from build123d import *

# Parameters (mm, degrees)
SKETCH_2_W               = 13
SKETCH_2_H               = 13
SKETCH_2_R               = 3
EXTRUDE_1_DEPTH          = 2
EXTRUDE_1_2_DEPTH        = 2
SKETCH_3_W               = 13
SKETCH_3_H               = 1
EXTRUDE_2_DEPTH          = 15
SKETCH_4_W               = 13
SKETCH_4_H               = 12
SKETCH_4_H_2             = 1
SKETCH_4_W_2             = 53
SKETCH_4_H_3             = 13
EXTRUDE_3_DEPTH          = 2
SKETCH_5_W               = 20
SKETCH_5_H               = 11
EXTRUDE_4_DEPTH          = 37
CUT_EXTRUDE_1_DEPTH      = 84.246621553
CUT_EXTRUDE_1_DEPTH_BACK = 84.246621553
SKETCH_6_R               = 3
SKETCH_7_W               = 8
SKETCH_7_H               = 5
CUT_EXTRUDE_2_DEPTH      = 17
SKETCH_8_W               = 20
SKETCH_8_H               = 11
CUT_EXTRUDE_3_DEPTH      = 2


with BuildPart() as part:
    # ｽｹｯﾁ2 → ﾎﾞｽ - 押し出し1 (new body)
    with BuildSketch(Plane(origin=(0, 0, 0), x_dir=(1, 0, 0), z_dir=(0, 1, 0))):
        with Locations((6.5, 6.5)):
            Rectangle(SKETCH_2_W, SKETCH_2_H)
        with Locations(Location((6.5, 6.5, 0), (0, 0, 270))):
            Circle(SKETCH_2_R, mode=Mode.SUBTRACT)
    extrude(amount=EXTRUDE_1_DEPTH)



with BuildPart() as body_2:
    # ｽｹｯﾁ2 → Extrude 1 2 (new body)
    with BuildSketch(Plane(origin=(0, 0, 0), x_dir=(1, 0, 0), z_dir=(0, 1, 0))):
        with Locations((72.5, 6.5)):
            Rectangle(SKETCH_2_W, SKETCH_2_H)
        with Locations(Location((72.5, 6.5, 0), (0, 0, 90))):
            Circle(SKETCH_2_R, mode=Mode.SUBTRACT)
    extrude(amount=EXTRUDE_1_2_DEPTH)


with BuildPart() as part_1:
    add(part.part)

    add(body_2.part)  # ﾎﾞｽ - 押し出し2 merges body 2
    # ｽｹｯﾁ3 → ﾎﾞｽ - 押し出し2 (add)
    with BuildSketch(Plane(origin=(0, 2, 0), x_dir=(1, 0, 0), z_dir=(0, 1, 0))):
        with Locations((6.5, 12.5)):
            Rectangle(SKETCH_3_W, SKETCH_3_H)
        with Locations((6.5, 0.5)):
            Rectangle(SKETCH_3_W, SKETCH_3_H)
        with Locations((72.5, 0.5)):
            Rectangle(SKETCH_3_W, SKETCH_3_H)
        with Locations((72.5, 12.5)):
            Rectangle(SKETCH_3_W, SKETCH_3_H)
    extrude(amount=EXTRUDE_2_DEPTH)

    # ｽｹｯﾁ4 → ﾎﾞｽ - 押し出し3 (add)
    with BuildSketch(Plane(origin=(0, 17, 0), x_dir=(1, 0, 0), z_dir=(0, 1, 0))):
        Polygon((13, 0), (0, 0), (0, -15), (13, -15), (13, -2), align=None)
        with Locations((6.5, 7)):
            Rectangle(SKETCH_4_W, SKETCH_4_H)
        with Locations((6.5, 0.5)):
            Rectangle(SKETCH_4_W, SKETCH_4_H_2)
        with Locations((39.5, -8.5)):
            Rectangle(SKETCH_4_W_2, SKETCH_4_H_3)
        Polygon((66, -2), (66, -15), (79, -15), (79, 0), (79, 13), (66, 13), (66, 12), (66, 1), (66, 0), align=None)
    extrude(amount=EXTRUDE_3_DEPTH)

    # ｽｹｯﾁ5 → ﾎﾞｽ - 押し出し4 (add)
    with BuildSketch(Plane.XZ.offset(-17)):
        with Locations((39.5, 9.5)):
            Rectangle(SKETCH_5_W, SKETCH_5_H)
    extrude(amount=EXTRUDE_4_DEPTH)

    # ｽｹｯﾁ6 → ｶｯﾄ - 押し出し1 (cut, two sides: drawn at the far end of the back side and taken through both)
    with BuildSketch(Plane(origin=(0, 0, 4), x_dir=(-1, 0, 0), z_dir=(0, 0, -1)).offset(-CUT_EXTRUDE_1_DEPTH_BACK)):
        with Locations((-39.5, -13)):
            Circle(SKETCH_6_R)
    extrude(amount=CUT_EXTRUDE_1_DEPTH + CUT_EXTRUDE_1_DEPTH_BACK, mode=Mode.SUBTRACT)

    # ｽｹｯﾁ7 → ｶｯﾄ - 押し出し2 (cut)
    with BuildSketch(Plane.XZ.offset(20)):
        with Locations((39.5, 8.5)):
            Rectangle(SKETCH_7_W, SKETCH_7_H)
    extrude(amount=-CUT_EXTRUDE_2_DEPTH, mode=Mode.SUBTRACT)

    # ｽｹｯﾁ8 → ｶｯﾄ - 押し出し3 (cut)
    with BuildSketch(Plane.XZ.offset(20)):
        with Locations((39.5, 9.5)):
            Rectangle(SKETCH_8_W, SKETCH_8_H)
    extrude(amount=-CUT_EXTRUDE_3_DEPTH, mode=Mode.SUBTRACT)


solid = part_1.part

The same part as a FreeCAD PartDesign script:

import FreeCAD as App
import Part
import Sketcher

V = App.Vector

doc = App.newDocument("Part")
params = doc.addObject("Spreadsheet::Sheet", "Params")
for row, (alias, value) in enumerate([
    ("sketch1_diameter", "6 mm"),
    ("sketch1_width", "13 mm"),
    ("pad1_length", "2 mm"),
    ("sketch2_diameter", "6 mm"),
    ("sketch2_width", "13 mm"),
    ("pad2_length", "2 mm"),
    ("sketch3_width", "13 mm"),
    ("sketch3_height", "1 mm"),
    ("pad3_length", "15 mm"),
    ("sketch4_width", "79 mm"),
    ("sketch4_width2", "13 mm"),
    ("sketch4_height", "28 mm"),
    ("sketch4_height2", "15 mm"),
    ("pad4_length", "2 mm"),
    ("sketch5_width", "20 mm"),
    ("sketch5_height", "11 mm"),
    ("pad5_length", "37 mm"),
    ("sketch6_diameter", "6 mm"),
    ("sketch7_width", "8 mm"),
    ("sketch7_height", "5 mm"),
    ("pocket2_length", "17 mm"),
    ("sketch8_width", "20 mm"),
    ("sketch8_height", "11 mm"),
    ("pocket3_length", "2 mm"),
], start=1):
    params.set(f"A{row}", alias)
    params.set(f"B{row}", "=" + value)
    params.setAlias(f"B{row}", alias)

body = doc.addObject("PartDesign::Body", "Body")

sketch1 = body.newObject("Sketcher::SketchObject", "Sketch")
sketch1.AttachmentSupport = (doc.getObject("XZ_Plane"), [""])
sketch1.MapMode = "FlatFace"
sketch1.addGeometry(Part.LineSegment(V(0, -13, 0), V(0, 0, 0)), False)
sketch1.addGeometry(Part.LineSegment(V(0, 0, 0), V(13, 0, 0)), False)
sketch1.addGeometry(Part.LineSegment(V(13, 0, 0), V(13, -13, 0)), False)
sketch1.addGeometry(Part.LineSegment(V(13, -13, 0), V(0, -13, 0)), False)
sketch1.addGeometry(Part.Circle(V(6.5, -6.5, 0), V(0, 0, 1), 3), False)
sketch1.addConstraint(Sketcher.Constraint("Coincident", 0, 2, 1, 1))
sketch1.addConstraint(Sketcher.Constraint("Coincident", 1, 2, 2, 1))
sketch1.addConstraint(Sketcher.Constraint("Coincident", 2, 2, 3, 1))
sketch1.addConstraint(Sketcher.Constraint("Coincident", 3, 2, 0, 1))
sketch1.addConstraint(Sketcher.Constraint("Vertical", 0))
sketch1.addConstraint(Sketcher.Constraint("Horizontal", 1))
sketch1.addConstraint(Sketcher.Constraint("Vertical", 2))
sketch1.addConstraint(Sketcher.Constraint("Horizontal", 3))
sketch1.addConstraint(Sketcher.Constraint("Coincident", 0, 2, -1, 1))
sketch1.addConstraint(Sketcher.Constraint("Equal", 3, 0))
sketch1.addConstraint(Sketcher.Constraint("Diameter", 4, 6.0))
sketch1.addConstraint(Sketcher.Constraint("DistanceX", 1, 1, 1, 2, 13.0))
sketch1.addConstraint(Sketcher.Constraint("DistanceX", -1, 1, 4, 3, 6.5))
sketch1.addConstraint(Sketcher.Constraint("DistanceY", 4, 3, -1, 1, 6.5))
sketch1.setExpression("Constraints[10]", "Params.sketch1_diameter")
sketch1.setExpression("Constraints[11]", "Params.sketch1_width")
pad1 = body.newObject("PartDesign::Pad", "Pad")
pad1.Profile = sketch1
pad1.setExpression("Length", "Params.pad1_length")
pad1.Reversed = True
body2 = doc.addObject("PartDesign::Body", "Body001")

sketch2 = body2.newObject("Sketcher::SketchObject", "Sketch001")
sketch2.AttachmentSupport = (doc.getObject("XZ_Plane001"), [""])
sketch2.MapMode = "FlatFace"
sketch2.addGeometry(Part.LineSegment(V(66, -13, 0), V(66, 0, 0)), False)
sketch2.addGeometry(Part.LineSegment(V(66, 0, 0), V(79, 0, 0)), False)
sketch2.addGeometry(Part.LineSegment(V(79, 0, 0), V(79, -13, 0)), False)
sketch2.addGeometry(Part.LineSegment(V(79, -13, 0), V(66, -13, 0)), False)
sketch2.addGeometry(Part.Circle(V(72.5, -6.5, 0), V(0, 0, 1), 3), False)
sketch2.addConstraint(Sketcher.Constraint("Coincident", 0, 2, 1, 1))
sketch2.addConstraint(Sketcher.Constraint("Coincident", 1, 2, 2, 1))
sketch2.addConstraint(Sketcher.Constraint("Coincident", 2, 2, 3, 1))
sketch2.addConstraint(Sketcher.Constraint("Coincident", 3, 2, 0, 1))
sketch2.addConstraint(Sketcher.Constraint("Vertical", 0))
sketch2.addConstraint(Sketcher.Constraint("Horizontal", 1))
sketch2.addConstraint(Sketcher.Constraint("Vertical", 2))
sketch2.addConstraint(Sketcher.Constraint("Horizontal", 3))
sketch2.addConstraint(Sketcher.Constraint("PointOnObject", 0, 2, -1))
sketch2.addConstraint(Sketcher.Constraint("Equal", 3, 0))
sketch2.addConstraint(Sketcher.Constraint("Diameter", 4, 6.0))
sketch2.addConstraint(Sketcher.Constraint("DistanceX", 1, 1, 1, 2, 13.0))
sketch2.addConstraint(Sketcher.Constraint("DistanceX", -1, 1, 0, 2, 66.0))
sketch2.addConstraint(Sketcher.Constraint("DistanceX", -1, 1, 4, 3, 72.5))
sketch2.addConstraint(Sketcher.Constraint("DistanceY", 4, 3, -1, 1, 6.5))
sketch2.setExpression("Constraints[10]", "Params.sketch2_diameter")
sketch2.setExpression("Constraints[11]", "Params.sketch2_width")
pad2 = body2.newObject("PartDesign::Pad", "Pad001")
pad2.Profile = sketch2
pad2.setExpression("Length", "Params.pad2_length")
pad2.Reversed = True
body.AllowCompound = True
doc.recompute()

boolean = body.newObject("PartDesign::Boolean", "Boolean")
boolean.Type = "Fuse"
boolean.addObjects([body2])

sketch3 = body.newObject("Sketcher::SketchObject", "Sketch002")
sketch3.AttachmentSupport = (doc.getObject("XZ_Plane"), [""])
sketch3.MapMode = "FlatFace"
sketch3.AttachmentOffset = App.Placement(V(0, 0, -2), App.Rotation())
sketch3.addGeometry(Part.LineSegment(V(0, -13, 0), V(0, -12, 0)), False)
sketch3.addGeometry(Part.LineSegment(V(0, -12, 0), V(13, -12, 0)), False)
sketch3.addGeometry(Part.LineSegment(V(13, -12, 0), V(13, -13, 0)), False)
sketch3.addGeometry(Part.LineSegment(V(13, -13, 0), V(0, -13, 0)), False)
sketch3.addGeometry(Part.LineSegment(V(0, -1, 0), V(0, 0, 0)), False)
sketch3.addGeometry(Part.LineSegment(V(0, 0, 0), V(13, 0, 0)), False)
sketch3.addGeometry(Part.LineSegment(V(13, 0, 0), V(13, -1, 0)), False)
sketch3.addGeometry(Part.LineSegment(V(13, -1, 0), V(0, -1, 0)), False)
sketch3.addGeometry(Part.LineSegment(V(66, -1, 0), V(66, 0, 0)), False)
sketch3.addGeometry(Part.LineSegment(V(66, 0, 0), V(79, 0, 0)), False)
sketch3.addGeometry(Part.LineSegment(V(79, 0, 0), V(79, -1, 0)), False)
sketch3.addGeometry(Part.LineSegment(V(79, -1, 0), V(66, -1, 0)), False)
sketch3.addGeometry(Part.LineSegment(V(66, -13, 0), V(66, -12, 0)), False)
sketch3.addGeometry(Part.LineSegment(V(66, -12, 0), V(79, -12, 0)), False)
sketch3.addGeometry(Part.LineSegment(V(79, -12, 0), V(79, -13, 0)), False)
sketch3.addGeometry(Part.LineSegment(V(79, -13, 0), V(66, -13, 0)), False)
sketch3.addConstraint(Sketcher.Constraint("Coincident", 0, 2, 1, 1))
sketch3.addConstraint(Sketcher.Constraint("Coincident", 1, 2, 2, 1))
sketch3.addConstraint(Sketcher.Constraint("Coincident", 2, 2, 3, 1))
sketch3.addConstraint(Sketcher.Constraint("Coincident", 3, 2, 0, 1))
sketch3.addConstraint(Sketcher.Constraint("Coincident", 4, 2, 5, 1))
sketch3.addConstraint(Sketcher.Constraint("Coincident", 5, 2, 6, 1))
sketch3.addConstraint(Sketcher.Constraint("Coincident", 6, 2, 7, 1))
sketch3.addConstraint(Sketcher.Constraint("Coincident", 7, 2, 4, 1))
sketch3.addConstraint(Sketcher.Constraint("Coincident", 8, 2, 9, 1))
sketch3.addConstraint(Sketcher.Constraint("Coincident", 9, 2, 10, 1))
sketch3.addConstraint(Sketcher.Constraint("Coincident", 10, 2, 11, 1))
sketch3.addConstraint(Sketcher.Constraint("Coincident", 11, 2, 8, 1))
sketch3.addConstraint(Sketcher.Constraint("Coincident", 12, 2, 13, 1))
sketch3.addConstraint(Sketcher.Constraint("Coincident", 13, 2, 14, 1))
sketch3.addConstraint(Sketcher.Constraint("Coincident", 14, 2, 15, 1))
sketch3.addConstraint(Sketcher.Constraint("Coincident", 15, 2, 12, 1))
sketch3.addConstraint(Sketcher.Constraint("Vertical", 0))
sketch3.addConstraint(Sketcher.Constraint("Horizontal", 1))
sketch3.addConstraint(Sketcher.Constraint("Vertical", 2))
sketch3.addConstraint(Sketcher.Constraint("Horizontal", 3))
sketch3.addConstraint(Sketcher.Constraint("Vertical", 4))
sketch3.addConstraint(Sketcher.Constraint("Horizontal", 5))
sketch3.addConstraint(Sketcher.Constraint("Vertical", 6))
sketch3.addConstraint(Sketcher.Constraint("Horizontal", 7))
sketch3.addConstraint(Sketcher.Constraint("Vertical", 8))
sketch3.addConstraint(Sketcher.Constraint("Horizontal", 9))
sketch3.addConstraint(Sketcher.Constraint("Vertical", 10))
sketch3.addConstraint(Sketcher.Constraint("Horizontal", 11))
sketch3.addConstraint(Sketcher.Constraint("Vertical", 12))
sketch3.addConstraint(Sketcher.Constraint("Horizontal", 13))
sketch3.addConstraint(Sketcher.Constraint("Vertical", 14))
sketch3.addConstraint(Sketcher.Constraint("Horizontal", 15))
sketch3.addConstraint(Sketcher.Constraint("Coincident", 4, 2, -1, 1))
sketch3.addConstraint(Sketcher.Constraint("PointOnObject", 0, 2, -2))
sketch3.addConstraint(Sketcher.Constraint("PointOnObject", 8, 2, -1))
sketch3.addConstraint(Sketcher.Constraint("Horizontal", 7, 2, 10, 2))
sketch3.addConstraint(Sketcher.Constraint("Horizontal", 1, 2, 12, 2))
sketch3.addConstraint(Sketcher.Constraint("Horizontal", 3, 2, 14, 2))
sketch3.addConstraint(Sketcher.Constraint("Vertical", 2, 2, 5, 2))
sketch3.addConstraint(Sketcher.Constraint("Vertical", 11, 2, 12, 2))
sketch3.addConstraint(Sketcher.Constraint("Vertical", 10, 2, 13, 2))
sketch3.addConstraint(Sketcher.Constraint("Equal", 7, 9))
sketch3.addConstraint(Sketcher.Constraint("Equal", 2, 4))
sketch3.addConstraint(Sketcher.Constraint("DistanceX", 1, 1, 1, 2, 13.0))
sketch3.addConstraint(Sketcher.Constraint("DistanceY", 0, 1, 0, 2, 1.0))
sketch3.addConstraint(Sketcher.Constraint("DistanceY", 0, 2, -1, 1, 12.0))
sketch3.addConstraint(Sketcher.Constraint("DistanceX", -1, 1, 8, 2, 66.0))
sketch3.setExpression("Constraints[43]", "Params.sketch3_width")
sketch3.setExpression("Constraints[44]", "Params.sketch3_height")
pad3 = body.newObject("PartDesign::Pad", "Pad002")
pad3.Profile = sketch3
pad3.setExpression("Length", "Params.pad3_length")
pad3.Reversed = True

sketch4 = body.newObject("Sketcher::SketchObject", "Sketch003")
sketch4.AttachmentSupport = (doc.getObject("XZ_Plane"), [""])
sketch4.MapMode = "FlatFace"
sketch4.AttachmentOffset = App.Placement(V(0, 0, -17), App.Rotation())
sketch4.addGeometry(Part.LineSegment(V(0, 15, 0), V(79, 15, 0)), False)
sketch4.addGeometry(Part.LineSegment(V(79, 15, 0), V(79, -13, 0)), False)
sketch4.addGeometry(Part.LineSegment(V(79, -13, 0), V(66, -13, 0)), False)
sketch4.addGeometry(Part.LineSegment(V(66, -13, 0), V(66, 2, 0)), False)
sketch4.addGeometry(Part.LineSegment(V(66, 2, 0), V(13, 2, 0)), False)
sketch4.addGeometry(Part.LineSegment(V(13, 2, 0), V(13, -13, 0)), False)
sketch4.addGeometry(Part.LineSegment(V(13, -13, 0), V(0, -13, 0)), False)
sketch4.addGeometry(Part.LineSegment(V(0, -13, 0), V(0, 15, 0)), False)
sketch4.addConstraint(Sketcher.Constraint("Coincident", 0, 2, 1, 1))
sketch4.addConstraint(Sketcher.Constraint("Coincident", 1, 2, 2, 1))
sketch4.addConstraint(Sketcher.Constraint("Coincident", 2, 2, 3, 1))
sketch4.addConstraint(Sketcher.Constraint("Coincident", 3, 2, 4, 1))
sketch4.addConstraint(Sketcher.Constraint("Coincident", 4, 2, 5, 1))
sketch4.addConstraint(Sketcher.Constraint("Coincident", 5, 2, 6, 1))
sketch4.addConstraint(Sketcher.Constraint("Coincident", 6, 2, 7, 1))
sketch4.addConstraint(Sketcher.Constraint("Coincident", 7, 2, 0, 1))
sketch4.addConstraint(Sketcher.Constraint("Horizontal", 0))
sketch4.addConstraint(Sketcher.Constraint("Vertical", 1))
sketch4.addConstraint(Sketcher.Constraint("Horizontal", 2))
sketch4.addConstraint(Sketcher.Constraint("Vertical", 3))
sketch4.addConstraint(Sketcher.Constraint("Horizontal", 4))
sketch4.addConstraint(Sketcher.Constraint("Vertical", 5))
sketch4.addConstraint(Sketcher.Constraint("Horizontal", 6))
sketch4.addConstraint(Sketcher.Constraint("Vertical", 7))
sketch4.addConstraint(Sketcher.Constraint("PointOnObject", 6, 2, -2))
sketch4.addConstraint(Sketcher.Constraint("Horizontal", 2, 2, 5, 2))
sketch4.addConstraint(Sketcher.Constraint("Equal", 2, 6))
sketch4.addConstraint(Sketcher.Constraint("DistanceX", 0, 1, 0, 2, 79.0))
sketch4.addConstraint(Sketcher.Constraint("DistanceX", 2, 2, 2, 1, 13.0))
sketch4.addConstraint(Sketcher.Constraint("DistanceY", 1, 2, 1, 1, 28.0))
sketch4.addConstraint(Sketcher.Constraint("DistanceY", 3, 1, 3, 2, 15.0))
sketch4.addConstraint(Sketcher.Constraint("DistanceY", -1, 1, 0, 2, 15.0))
sketch4.setExpression("Constraints[19]", "Params.sketch4_width")
sketch4.setExpression("Constraints[20]", "Params.sketch4_width2")
sketch4.setExpression("Constraints[21]", "Params.sketch4_height")
sketch4.setExpression("Constraints[22]", "Params.sketch4_height2")
pad4 = body.newObject("PartDesign::Pad", "Pad003")
pad4.Profile = sketch4
pad4.setExpression("Length", "Params.pad4_length")
pad4.Reversed = True

sketch5 = body.newObject("Sketcher::SketchObject", "Sketch004")
sketch5.AttachmentSupport = (doc.getObject("XZ_Plane"), [""])
sketch5.MapMode = "FlatFace"
sketch5.AttachmentOffset = App.Placement(V(0, 0, -17), App.Rotation())
sketch5.addGeometry(Part.LineSegment(V(30, 15, 0), V(30, 4, 0)), False)
sketch5.addGeometry(Part.LineSegment(V(30, 4, 0), V(50, 4, 0)), False)
sketch5.addGeometry(Part.LineSegment(V(50, 4, 0), V(50, 15, 0)), False)
sketch5.addGeometry(Part.LineSegment(V(50, 15, 0), V(30, 15, 0)), False)
sketch5.addConstraint(Sketcher.Constraint("Coincident", 0, 2, 1, 1))
sketch5.addConstraint(Sketcher.Constraint("Coincident", 1, 2, 2, 1))
sketch5.addConstraint(Sketcher.Constraint("Coincident", 2, 2, 3, 1))
sketch5.addConstraint(Sketcher.Constraint("Coincident", 3, 2, 0, 1))
sketch5.addConstraint(Sketcher.Constraint("Vertical", 0))
sketch5.addConstraint(Sketcher.Constraint("Horizontal", 1))
sketch5.addConstraint(Sketcher.Constraint("Vertical", 2))
sketch5.addConstraint(Sketcher.Constraint("Horizontal", 3))
sketch5.addConstraint(Sketcher.Constraint("DistanceX", 1, 1, 1, 2, 20.0))
sketch5.addConstraint(Sketcher.Constraint("DistanceY", 0, 2, 0, 1, 11.0))
sketch5.addConstraint(Sketcher.Constraint("DistanceY", -1, 1, 0, 2, 4.0))
sketch5.addConstraint(Sketcher.Constraint("DistanceX", -1, 1, 0, 2, 29.5))
sketch5.setExpression("Constraints[8]", "Params.sketch5_width")
sketch5.setExpression("Constraints[9]", "Params.sketch5_height")
pad5 = body.newObject("PartDesign::Pad", "Pad004")
pad5.Profile = sketch5
pad5.setExpression("Length", "Params.pad5_length")

sketch6 = body.newObject("Sketcher::SketchObject", "Sketch005")
sketch6.AttachmentSupport = (doc.getObject("XY_Plane"), [""])
sketch6.MapMode = "FlatFace"
sketch6.AttachmentOffset = App.Placement(V(0, 0, 4), App.Rotation())
sketch6.addGeometry(Part.Circle(V(39.5, -13, 0), V(0, 0, 1), 3), False)
sketch6.addConstraint(Sketcher.Constraint("Diameter", 0, 6.0))
sketch6.addConstraint(Sketcher.Constraint("DistanceY", 0, 3, -1, 1, 13.0))
sketch6.addConstraint(Sketcher.Constraint("DistanceX", -1, 1, 0, 3, 39.5))
sketch6.setExpression("Constraints[0]", "Params.sketch6_diameter")
pocket1 = body.newObject("PartDesign::Pocket", "Pocket")
pocket1.Profile = sketch6
pocket1.Type = "ThroughAll"
pocket1.Midplane = True

sketch7 = body.newObject("Sketcher::SketchObject", "Sketch006")
sketch7.AttachmentSupport = (doc.getObject("XZ_Plane"), [""])
sketch7.MapMode = "FlatFace"
sketch7.AttachmentOffset = App.Placement(V(0, 0, 20), App.Rotation())
sketch7.addGeometry(Part.LineSegment(V(36, 11, 0), V(36, 6, 0)), False)
sketch7.addGeometry(Part.LineSegment(V(36, 6, 0), V(44, 6, 0)), False)
sketch7.addGeometry(Part.LineSegment(V(44, 6, 0), V(44, 11, 0)), False)
sketch7.addGeometry(Part.LineSegment(V(44, 11, 0), V(36, 11, 0)), False)
sketch7.addConstraint(Sketcher.Constraint("Coincident", 0, 2, 1, 1))
sketch7.addConstraint(Sketcher.Constraint("Coincident", 1, 2, 2, 1))
sketch7.addConstraint(Sketcher.Constraint("Coincident", 2, 2, 3, 1))
sketch7.addConstraint(Sketcher.Constraint("Coincident", 3, 2, 0, 1))
sketch7.addConstraint(Sketcher.Constraint("Vertical", 0))
sketch7.addConstraint(Sketcher.Constraint("Horizontal", 1))
sketch7.addConstraint(Sketcher.Constraint("Vertical", 2))
sketch7.addConstraint(Sketcher.Constraint("Horizontal", 3))
sketch7.addConstraint(Sketcher.Constraint("DistanceX", 1, 1, 1, 2, 8.0))
sketch7.addConstraint(Sketcher.Constraint("DistanceY", 0, 2, 0, 1, 5.0))
sketch7.addConstraint(Sketcher.Constraint("DistanceY", -1, 1, 0, 2, 6.0))
sketch7.addConstraint(Sketcher.Constraint("DistanceX", -1, 1, 0, 2, 35.5))
sketch7.setExpression("Constraints[8]", "Params.sketch7_width")
sketch7.setExpression("Constraints[9]", "Params.sketch7_height")
pocket2 = body.newObject("PartDesign::Pocket", "Pocket001")
pocket2.Profile = sketch7
pocket2.setExpression("Length", "Params.pocket2_length")

sketch8 = body.newObject("Sketcher::SketchObject", "Sketch007")
sketch8.AttachmentSupport = (doc.getObject("XZ_Plane"), [""])
sketch8.MapMode = "FlatFace"
sketch8.AttachmentOffset = App.Placement(V(0, 0, 20), App.Rotation())
sketch8.addGeometry(Part.LineSegment(V(30, 15, 0), V(30, 4, 0)), False)
sketch8.addGeometry(Part.LineSegment(V(30, 4, 0), V(50, 4, 0)), False)
sketch8.addGeometry(Part.LineSegment(V(50, 4, 0), V(50, 15, 0)), False)
sketch8.addGeometry(Part.LineSegment(V(50, 15, 0), V(30, 15, 0)), False)
sketch8.addConstraint(Sketcher.Constraint("Coincident", 0, 2, 1, 1))
sketch8.addConstraint(Sketcher.Constraint("Coincident", 1, 2, 2, 1))
sketch8.addConstraint(Sketcher.Constraint("Coincident", 2, 2, 3, 1))
sketch8.addConstraint(Sketcher.Constraint("Coincident", 3, 2, 0, 1))
sketch8.addConstraint(Sketcher.Constraint("Vertical", 0))
sketch8.addConstraint(Sketcher.Constraint("Horizontal", 1))
sketch8.addConstraint(Sketcher.Constraint("Vertical", 2))
sketch8.addConstraint(Sketcher.Constraint("Horizontal", 3))
sketch8.addConstraint(Sketcher.Constraint("DistanceX", 1, 1, 1, 2, 20.0))
sketch8.addConstraint(Sketcher.Constraint("DistanceY", 0, 2, 0, 1, 11.0))
sketch8.addConstraint(Sketcher.Constraint("DistanceY", -1, 1, 0, 2, 4.0))
sketch8.addConstraint(Sketcher.Constraint("DistanceX", -1, 1, 0, 2, 29.5))
sketch8.setExpression("Constraints[8]", "Params.sketch8_width")
sketch8.setExpression("Constraints[9]", "Params.sketch8_height")
pocket3 = body.newObject("PartDesign::Pocket", "Pocket002")
pocket3.Profile = sketch8
pocket3.setExpression("Length", "Params.pocket3_length")

doc.recompute()
